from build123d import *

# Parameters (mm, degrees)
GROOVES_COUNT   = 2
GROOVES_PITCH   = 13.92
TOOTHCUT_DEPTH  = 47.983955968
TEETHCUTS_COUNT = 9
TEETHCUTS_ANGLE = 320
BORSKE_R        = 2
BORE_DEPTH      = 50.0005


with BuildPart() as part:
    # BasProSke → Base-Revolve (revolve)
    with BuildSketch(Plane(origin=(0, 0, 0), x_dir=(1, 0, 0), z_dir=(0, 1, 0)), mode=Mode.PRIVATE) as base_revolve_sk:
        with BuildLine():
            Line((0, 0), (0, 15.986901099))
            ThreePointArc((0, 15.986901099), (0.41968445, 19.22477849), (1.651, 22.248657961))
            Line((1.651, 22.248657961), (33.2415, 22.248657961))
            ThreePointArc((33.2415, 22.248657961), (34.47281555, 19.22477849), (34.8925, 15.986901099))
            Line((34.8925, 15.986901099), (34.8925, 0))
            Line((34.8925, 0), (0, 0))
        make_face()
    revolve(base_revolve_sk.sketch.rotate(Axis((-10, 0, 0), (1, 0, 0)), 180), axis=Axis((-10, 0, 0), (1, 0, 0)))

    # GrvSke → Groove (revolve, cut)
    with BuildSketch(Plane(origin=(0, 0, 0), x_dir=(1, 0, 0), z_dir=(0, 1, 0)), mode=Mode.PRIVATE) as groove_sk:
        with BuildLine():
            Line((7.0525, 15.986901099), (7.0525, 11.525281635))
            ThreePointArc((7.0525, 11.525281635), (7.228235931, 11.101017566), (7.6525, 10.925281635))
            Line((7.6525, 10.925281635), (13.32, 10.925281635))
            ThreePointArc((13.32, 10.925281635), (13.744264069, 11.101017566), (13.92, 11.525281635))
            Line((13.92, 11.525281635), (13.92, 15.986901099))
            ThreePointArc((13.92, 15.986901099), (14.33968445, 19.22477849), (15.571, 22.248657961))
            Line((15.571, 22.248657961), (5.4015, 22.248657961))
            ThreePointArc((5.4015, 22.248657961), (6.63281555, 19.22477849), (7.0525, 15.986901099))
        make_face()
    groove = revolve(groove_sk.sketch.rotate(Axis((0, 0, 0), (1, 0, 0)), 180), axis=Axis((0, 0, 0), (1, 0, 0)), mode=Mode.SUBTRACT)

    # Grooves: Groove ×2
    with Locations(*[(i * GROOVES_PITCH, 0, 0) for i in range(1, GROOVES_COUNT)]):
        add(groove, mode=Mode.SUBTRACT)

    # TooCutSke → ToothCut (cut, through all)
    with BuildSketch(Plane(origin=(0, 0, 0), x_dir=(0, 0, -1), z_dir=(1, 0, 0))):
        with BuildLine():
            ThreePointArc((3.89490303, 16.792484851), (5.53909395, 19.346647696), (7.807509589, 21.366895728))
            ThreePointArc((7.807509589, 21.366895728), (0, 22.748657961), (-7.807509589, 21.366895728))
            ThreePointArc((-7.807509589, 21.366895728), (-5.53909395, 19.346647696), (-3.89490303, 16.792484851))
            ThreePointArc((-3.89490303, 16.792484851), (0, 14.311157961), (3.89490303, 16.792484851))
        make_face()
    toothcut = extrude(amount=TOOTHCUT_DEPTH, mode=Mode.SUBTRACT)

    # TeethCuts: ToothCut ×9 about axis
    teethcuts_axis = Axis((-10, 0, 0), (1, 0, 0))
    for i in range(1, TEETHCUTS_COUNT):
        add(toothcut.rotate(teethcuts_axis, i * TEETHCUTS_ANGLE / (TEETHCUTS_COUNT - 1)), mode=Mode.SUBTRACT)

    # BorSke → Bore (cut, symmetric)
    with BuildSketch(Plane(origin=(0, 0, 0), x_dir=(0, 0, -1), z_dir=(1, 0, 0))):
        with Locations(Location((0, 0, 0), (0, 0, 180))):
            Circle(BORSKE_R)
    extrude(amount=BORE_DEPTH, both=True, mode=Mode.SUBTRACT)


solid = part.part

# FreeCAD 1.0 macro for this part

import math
import FreeCAD as App
import Part
import Sketcher
Q = App.Units.Quantity

doc = App.newDocument("Part")
body = doc.addObject("PartDesign::Body", "Body")

# Sketch on XZ plane
sketch1 = doc.addObject("Sketcher::SketchObject", "Sketch")
body.addObject(sketch1)
sketch1.AttachmentSupport = (doc.XZ_Plane, [""])
sketch1.MapMode = "FlatFace"
sketch1.addGeometry([
    Part.LineSegment(App.Vector(0, -16, 0), App.Vector(0, 0, 0)),  # 0
    Part.LineSegment(App.Vector(0, 0, 0), App.Vector(35, 0, 0)),  # 1
    Part.LineSegment(App.Vector(35, 0, 0), App.Vector(35, -16, 0)),  # 2
    Part.ArcOfCircle(Part.Circle(App.Vector(22, -16, 0), App.Vector(0, 0, 1), 13), math.radians(-30), math.radians(0)),  # 3
    Part.LineSegment(App.Vector(33, -22, 0), App.Vector(2, -22, 0)),  # 4
    Part.ArcOfCircle(Part.Circle(App.Vector(13, -16, 0), App.Vector(0, 0, 1), 13), math.radians(180), math.radians(210)),  # 5
], False)
sketch1.addConstraint([
    Sketcher.Constraint("Coincident", 0, 2, 1, 1),
    Sketcher.Constraint("Coincident", 1, 2, 2, 1),
    Sketcher.Constraint("Tangent", 2, 2, 3, 2),
    Sketcher.Constraint("Coincident", 3, 1, 4, 1),
    Sketcher.Constraint("Coincident", 4, 2, 5, 2),
    Sketcher.Constraint("Tangent", 5, 1, 0, 1),
    Sketcher.Constraint("Vertical", 0),
    Sketcher.Constraint("Horizontal", 1),
    Sketcher.Constraint("Vertical", 2),
    Sketcher.Constraint("Horizontal", 4),
    Sketcher.Constraint("Coincident", 0, 2, -1, 1),
    Sketcher.Constraint("Equal", 3, 5),
    Sketcher.Constraint("Horizontal", 3, 3, 5, 3),
    Sketcher.Constraint("Radius", 3, Q("12.7 mm")),
    Sketcher.Constraint("DistanceX", 1, 1, 1, 2, Q("34.8925 mm")),
    Sketcher.Constraint("DistanceX", 4, 2, 4, 1, Q("31.5905 mm")),
    Sketcher.Constraint("DistanceY", 0, 1, 0, 2, Q("15.986901 mm")),
])
revolution = doc.addObject("PartDesign::Revolution", "Revolution")
body.addObject(revolution)
revolution.Profile = sketch1
revolution.ReferenceAxis = (sketch1, ["H_Axis"])
revolution.Angle = 360

# Sketch on XZ plane
sketch2 = doc.addObject("Sketcher::SketchObject", "Sketch001")
body.addObject(sketch2)
sketch2.AttachmentSupport = (doc.XZ_Plane, [""])
sketch2.MapMode = "FlatFace"
sketch2.addGeometry([
    Part.LineSegment(App.Vector(7.1, -16, 0), App.Vector(7.1, -11.5, 0)),  # 0
    Part.ArcOfCircle(Part.Circle(App.Vector(7.7, -11.5, 0), App.Vector(0, 0, 1), 0.6), math.radians(90), math.radians(180)),  # 1
    Part.LineSegment(App.Vector(7.7, -10.9, 0), App.Vector(13.3, -10.9, 0)),  # 2
    Part.ArcOfCircle(Part.Circle(App.Vector(13.3, -11.5, 0), App.Vector(0, 0, 1), 0.6), math.radians(0), math.radians(90)),  # 3
    Part.LineSegment(App.Vector(13.9, -11.5, 0), App.Vector(13.9, -16, 0)),  # 4
    Part.ArcOfCircle(Part.Circle(App.Vector(26.6, -16, 0), App.Vector(0, 0, 1), 12.7), math.radians(180), math.radians(210)),  # 5
    Part.LineSegment(App.Vector(15.6, -22.2, 0), App.Vector(5.4, -22.2, 0)),  # 6
    Part.ArcOfCircle(Part.Circle(App.Vector(-5.6, -16, 0), App.Vector(0, 0, 1), 12.7), math.radians(-30), math.radians(0)),  # 7
], False)
sketch2.addConstraint([
    Sketcher.Constraint("Tangent", 0, 2, 1, 2),
    Sketcher.Constraint("Tangent", 1, 1, 2, 1),
    Sketcher.Constraint("Tangent", 2, 2, 3, 2),
    Sketcher.Constraint("Tangent", 3, 1, 4, 1),
    Sketcher.Constraint("Tangent", 4, 2, 5, 1),
    Sketcher.Constraint("Coincident", 5, 2, 6, 1),
    Sketcher.Constraint("Coincident", 6, 2, 7, 1),
    Sketcher.Constraint("Tangent", 7, 2, 0, 1),
    Sketcher.Constraint("Vertical", 0),
    Sketcher.Constraint("Horizontal", 2),
    Sketcher.Constraint("Vertical", 4),
    Sketcher.Constraint("Horizontal", 6),
    Sketcher.Constraint("Equal", 1, 3),
    Sketcher.Constraint("Equal", 5, 7),
    Sketcher.Constraint("Horizontal", 5, 3, 7, 3),
    Sketcher.Constraint("Radius", 1, Q("0.6 mm")),
    Sketcher.Constraint("Radius", 5, Q("12.7 mm")),
    Sketcher.Constraint("DistanceX", -1, 1, 3, 3, Q("13.32 mm")),
    Sketcher.Constraint("DistanceX", 2, 1, 2, 2, Q("5.6675 mm")),
    Sketcher.Constraint("DistanceX", 6, 2, 6, 1, Q("10.1695 mm")),
    Sketcher.Constraint("DistanceY", 0, 1, 0, 2, Q("4.461619 mm")),
    Sketcher.Constraint("DistanceY", 5, 3, -1, 1, Q("15.986901 mm")),
])
groove = doc.addObject("PartDesign::Groove", "Groove")
body.addObject(groove)
groove.Profile = sketch2
groove.ReferenceAxis = (sketch2, ["H_Axis"])
groove.Angle = 360
doc.recompute()

linearpattern = doc.addObject("PartDesign::LinearPattern", "LinearPattern")
body.addObject(linearpattern)
linearpattern.Originals = [groove]
linearpattern.Direction = (doc.X_Axis, [""])
linearpattern.Mode = "offset"
linearpattern.Offset = 13.92
linearpattern.Occurrences = 2
body.Tip = linearpattern

# Sketch on YZ plane
sketch3 = doc.addObject("Sketcher::SketchObject", "Sketch002")
body.addObject(sketch3)
sketch3.AttachmentSupport = (doc.YZ_Plane, [""])
sketch3.MapMode = "FlatFace"
sketch3.addGeometry([
    Part.ArcOfCircle(Part.Circle(App.Vector(12, -14.1, 0), App.Vector(0, 0, 1), 11.2), math.radians(34), math.radians(65)),
    Part.ArcOfCircle(Part.Circle(App.Vector(0, 0, 0), App.Vector(0, 0, 1), 22.7), math.radians(-20), math.radians(20)),
    Part.ArcOfCircle(Part.Circle(App.Vector(12, 14.1, 0), App.Vector(0, 0, 1), 11.2), math.radians(-65), math.radians(-34)),
    Part.ArcOfCircle(Part.Circle(App.Vector(18.6, 0, 0), App.Vector(0, 0, 1), 4.3), math.radians(115), math.radians(245)),
], False)
sketch3.addConstraint([
    Sketcher.Constraint("Coincident", 0, 1, 1, 1),
    Sketcher.Constraint("Coincident", 1, 2, 2, 2),
    Sketcher.Constraint("Tangent", 2, 1, 3, 1),
    Sketcher.Constraint("Tangent", 3, 2, 0, 2),
    Sketcher.Constraint("Coincident", 1, 3, -1, 1),
    Sketcher.Constraint("Equal", 0, 2),
    Sketcher.Constraint("Symmetric", 0, 3, 2, 3, -1),
    Sketcher.Constraint("Radius", 0, Q("11.2332 mm")),
    Sketcher.Constraint("Radius", 3, Q("4.29755 mm")),
    Sketcher.Constraint("Radius", 1, Q("22.748658 mm")),
    Sketcher.Constraint("DistanceX", -1, 1, 0, 3, Q("12.045129 mm")),
    Sketcher.Constraint("DistanceY", 0, 3, -1, 1, Q("14.07564 mm")),
])
pocket1 = doc.addObject("PartDesign::Pocket", "Pocket")
body.addObject(pocket1)
pocket1.Profile = sketch3
pocket1.Type = "ThroughAll"
pocket1.Reversed = True
doc.recompute()

polarpattern = doc.addObject("PartDesign::PolarPattern", "PolarPattern")
body.addObject(polarpattern)
polarpattern.Originals = [pocket1]
polarpattern.Axis = (doc.X_Axis, [""])
polarpattern.Angle = 360
polarpattern.Occurrences = 9
body.Tip = polarpattern

# Sketch on YZ plane
sketch4 = doc.addObject("Sketcher::SketchObject", "Sketch003")
body.addObject(sketch4)
sketch4.AttachmentSupport = (doc.YZ_Plane, [""])
sketch4.MapMode = "FlatFace"
sketch4.addGeometry(Part.Circle(App.Vector(0, 0, 0), App.Vector(0, 0, 1), 2), False)
sketch4.addConstraint([
    Sketcher.Constraint("Coincident", 0, 3, -1, 1),
    Sketcher.Constraint("Diameter", 0, Q("4 mm")),
])
pocket2 = doc.addObject("PartDesign::Pocket", "Pocket001")
body.addObject(pocket2)
pocket2.Profile = sketch4
pocket2.Length = 100.001
pocket2.Midplane = True

doc.recompute()
